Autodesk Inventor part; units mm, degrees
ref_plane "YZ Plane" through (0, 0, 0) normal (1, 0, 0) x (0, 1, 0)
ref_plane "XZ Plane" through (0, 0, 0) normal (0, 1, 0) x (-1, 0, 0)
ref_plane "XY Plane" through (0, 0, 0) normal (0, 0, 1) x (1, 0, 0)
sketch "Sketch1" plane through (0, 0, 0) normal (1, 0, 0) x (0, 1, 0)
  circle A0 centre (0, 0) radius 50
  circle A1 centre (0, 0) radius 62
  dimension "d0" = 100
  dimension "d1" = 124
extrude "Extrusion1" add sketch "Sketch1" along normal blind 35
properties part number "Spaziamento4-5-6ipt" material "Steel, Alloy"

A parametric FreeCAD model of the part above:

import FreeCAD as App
import Part
import Sketcher
from FreeCAD import Vector
Q = App.Units.Quantity

doc = App.newDocument("Part")
body = doc.addObject("PartDesign::Body", "Body")

# Sketch on YZ plane
sketch1 = body.newObject("Sketcher::SketchObject", "Sketch")
sketch1.AttachmentSupport = (doc.getObject("YZ_Plane"), [""])
sketch1.MapMode = "FlatFace"
sketch1.addGeometry(Part.Circle(Vector(0, 0, 0), Vector(0, 0, 1), 62), False)
sketch1.addGeometry(Part.Circle(Vector(0, 0, 0), Vector(0, 0, 1), 50), False)
sketch1.addConstraint(Sketcher.Constraint("Coincident", 0, 3, -1, 1))
sketch1.addConstraint(Sketcher.Constraint("Coincident", 1, 3, -1, 1))
sketch1.addConstraint(Sketcher.Constraint("Diameter", 0, Q("124 mm")))
sketch1.addConstraint(Sketcher.Constraint("Diameter", 1, Q("100 mm")))
pad1 = body.newObject("PartDesign::Pad", "Pad")
pad1.Profile = sketch1
pad1.Length = 35

doc.recompute()
